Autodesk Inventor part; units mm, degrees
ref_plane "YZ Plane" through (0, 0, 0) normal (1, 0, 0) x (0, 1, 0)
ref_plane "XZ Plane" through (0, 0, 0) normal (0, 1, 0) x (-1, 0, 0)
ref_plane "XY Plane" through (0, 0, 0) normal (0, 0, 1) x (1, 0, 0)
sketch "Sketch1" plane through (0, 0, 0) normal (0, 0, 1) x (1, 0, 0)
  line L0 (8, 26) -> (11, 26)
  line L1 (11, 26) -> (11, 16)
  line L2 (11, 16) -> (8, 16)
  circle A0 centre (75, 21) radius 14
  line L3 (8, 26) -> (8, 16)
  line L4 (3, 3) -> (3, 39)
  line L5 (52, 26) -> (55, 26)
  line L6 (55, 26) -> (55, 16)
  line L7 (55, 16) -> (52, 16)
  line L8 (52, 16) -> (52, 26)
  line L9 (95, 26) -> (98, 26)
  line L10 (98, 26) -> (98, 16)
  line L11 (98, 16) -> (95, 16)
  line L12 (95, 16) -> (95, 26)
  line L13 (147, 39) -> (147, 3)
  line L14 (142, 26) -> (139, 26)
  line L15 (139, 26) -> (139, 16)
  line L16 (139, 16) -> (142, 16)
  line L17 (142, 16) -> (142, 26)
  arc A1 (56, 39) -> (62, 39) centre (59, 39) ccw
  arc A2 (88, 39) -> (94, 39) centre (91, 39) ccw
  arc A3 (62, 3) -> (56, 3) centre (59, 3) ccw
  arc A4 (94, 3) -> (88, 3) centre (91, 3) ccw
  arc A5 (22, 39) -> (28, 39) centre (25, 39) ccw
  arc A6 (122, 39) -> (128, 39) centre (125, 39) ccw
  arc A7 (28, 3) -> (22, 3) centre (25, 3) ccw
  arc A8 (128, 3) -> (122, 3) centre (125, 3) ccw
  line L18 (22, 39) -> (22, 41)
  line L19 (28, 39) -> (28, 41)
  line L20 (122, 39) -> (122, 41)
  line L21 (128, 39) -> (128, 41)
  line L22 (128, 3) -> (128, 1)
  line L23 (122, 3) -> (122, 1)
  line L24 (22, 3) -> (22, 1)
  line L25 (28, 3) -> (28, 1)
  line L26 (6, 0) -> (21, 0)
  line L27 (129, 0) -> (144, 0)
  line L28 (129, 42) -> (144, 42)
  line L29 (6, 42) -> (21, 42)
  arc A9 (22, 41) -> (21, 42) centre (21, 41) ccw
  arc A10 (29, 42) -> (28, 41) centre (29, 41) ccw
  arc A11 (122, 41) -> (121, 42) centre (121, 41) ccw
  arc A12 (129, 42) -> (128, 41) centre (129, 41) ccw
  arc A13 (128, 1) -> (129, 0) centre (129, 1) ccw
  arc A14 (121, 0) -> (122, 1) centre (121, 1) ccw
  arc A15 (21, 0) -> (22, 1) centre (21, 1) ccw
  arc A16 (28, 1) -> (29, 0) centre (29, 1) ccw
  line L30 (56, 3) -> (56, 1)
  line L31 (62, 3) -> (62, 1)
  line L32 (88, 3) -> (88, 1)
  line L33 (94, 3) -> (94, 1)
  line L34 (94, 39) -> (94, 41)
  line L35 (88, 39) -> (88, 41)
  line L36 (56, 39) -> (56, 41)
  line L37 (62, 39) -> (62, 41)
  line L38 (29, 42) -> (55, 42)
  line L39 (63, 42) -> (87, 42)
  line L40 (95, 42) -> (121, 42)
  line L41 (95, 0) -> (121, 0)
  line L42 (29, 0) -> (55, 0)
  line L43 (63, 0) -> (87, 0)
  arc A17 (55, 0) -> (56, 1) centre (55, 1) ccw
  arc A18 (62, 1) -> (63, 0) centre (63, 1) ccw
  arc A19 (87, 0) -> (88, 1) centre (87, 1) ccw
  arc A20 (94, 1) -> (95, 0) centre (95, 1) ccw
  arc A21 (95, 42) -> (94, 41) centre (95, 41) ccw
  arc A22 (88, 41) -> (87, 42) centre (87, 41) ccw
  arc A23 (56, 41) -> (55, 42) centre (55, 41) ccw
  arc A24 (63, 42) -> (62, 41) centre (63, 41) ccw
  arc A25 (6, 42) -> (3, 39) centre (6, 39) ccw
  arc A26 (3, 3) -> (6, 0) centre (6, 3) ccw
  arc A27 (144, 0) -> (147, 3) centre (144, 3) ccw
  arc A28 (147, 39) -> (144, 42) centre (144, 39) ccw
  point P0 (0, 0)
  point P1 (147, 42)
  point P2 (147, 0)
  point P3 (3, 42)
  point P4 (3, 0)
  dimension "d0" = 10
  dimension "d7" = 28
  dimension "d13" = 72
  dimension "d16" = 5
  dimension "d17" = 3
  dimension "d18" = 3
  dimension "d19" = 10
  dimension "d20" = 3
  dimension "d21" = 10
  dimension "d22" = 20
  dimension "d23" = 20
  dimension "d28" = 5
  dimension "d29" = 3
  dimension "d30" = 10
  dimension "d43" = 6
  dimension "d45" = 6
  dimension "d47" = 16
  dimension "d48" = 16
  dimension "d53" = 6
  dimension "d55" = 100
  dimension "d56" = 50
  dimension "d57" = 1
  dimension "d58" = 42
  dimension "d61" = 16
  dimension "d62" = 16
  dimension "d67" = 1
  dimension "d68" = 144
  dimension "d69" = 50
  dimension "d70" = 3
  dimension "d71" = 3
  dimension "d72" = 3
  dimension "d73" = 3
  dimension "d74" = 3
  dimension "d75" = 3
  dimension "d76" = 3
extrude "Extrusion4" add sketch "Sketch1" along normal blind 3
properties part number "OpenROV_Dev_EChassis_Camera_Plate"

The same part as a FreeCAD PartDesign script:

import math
import FreeCAD as App
import Part
import Sketcher

V = App.Vector
Q = App.Units.Quantity


def add_polygon(sketch, points):
    """Adds a closed chain of lines whose ends are joined by coincident constraints."""
    first, n = sketch.GeometryCount, len(points)
    for a, b in zip(points, points[1:] + points[:1]):
        sketch.addGeometry(Part.LineSegment(App.Vector(*a, 0), App.Vector(*b, 0)), False)
    for i in range(n):
        sketch.addConstraint(Sketcher.Constraint("Coincident", first + i, 2, first + (i + 1) % n, 1))

doc = App.newDocument("Part")
body = doc.addObject("PartDesign::Body", "Body")

# Sketch on XY plane
sketch1 = doc.addObject("Sketcher::SketchObject", "Sketch")
body.addObject(sketch1)
sketch1.AttachmentSupport = (doc.XY_Plane, [""])
sketch1.MapMode = "FlatFace"
sketch1.addGeometry(Part.LineSegment(V(3, 39, 0), V(3, 3, 0)), False)  # 0
sketch1.addGeometry(Part.ArcOfCircle(Part.Circle(V(6, 3, 0), V(0, 0, 1), 3), math.radians(180), math.radians(270)), False)  # 1
sketch1.addGeometry(Part.LineSegment(V(6, 0, 0), V(21, 0, 0)), False)  # 2
sketch1.addGeometry(Part.ArcOfCircle(Part.Circle(V(21, 1, 0), V(0, 0, 1), 1), math.radians(-90), math.radians(0)), False)  # 3
sketch1.addGeometry(Part.LineSegment(V(22, 1, 0), V(22, 3, 0)), False)  # 4
sketch1.addGeometry(Part.ArcOfCircle(Part.Circle(V(25, 3, 0), V(0, 0, 1), 3), math.radians(0), math.radians(180)), False)  # 5
sketch1.addGeometry(Part.LineSegment(V(28, 3, 0), V(28, 1, 0)), False)  # 6
sketch1.addGeometry(Part.ArcOfCircle(Part.Circle(V(29, 1, 0), V(0, 0, 1), 1), math.radians(180), math.radians(270)), False)  # 7
sketch1.addGeometry(Part.LineSegment(V(29, 0, 0), V(55, 0, 0)), False)  # 8
sketch1.addGeometry(Part.ArcOfCircle(Part.Circle(V(55, 1, 0), V(0, 0, 1), 1), math.radians(-90), math.radians(0)), False)  # 9
sketch1.addGeometry(Part.LineSegment(V(56, 1, 0), V(56, 3, 0)), False)  # 10
sketch1.addGeometry(Part.ArcOfCircle(Part.Circle(V(59, 3, 0), V(0, 0, 1), 3), math.radians(0), math.radians(180)), False)  # 11
sketch1.addGeometry(Part.LineSegment(V(62, 3, 0), V(62, 1, 0)), False)  # 12
sketch1.addGeometry(Part.ArcOfCircle(Part.Circle(V(63, 1, 0), V(0, 0, 1), 1), math.radians(180), math.radians(270)), False)  # 13
sketch1.addGeometry(Part.LineSegment(V(63, 0, 0), V(87, 0, 0)), False)  # 14
sketch1.addGeometry(Part.ArcOfCircle(Part.Circle(V(87, 1, 0), V(0, 0, 1), 1), math.radians(-90), math.radians(0)), False)  # 15
sketch1.addGeometry(Part.LineSegment(V(88, 1, 0), V(88, 3, 0)), False)  # 16
sketch1.addGeometry(Part.ArcOfCircle(Part.Circle(V(91, 3, 0), V(0, 0, 1), 3), math.radians(0), math.radians(180)), False)  # 17
sketch1.addGeometry(Part.LineSegment(V(94, 3, 0), V(94, 1, 0)), False)  # 18
sketch1.addGeometry(Part.ArcOfCircle(Part.Circle(V(95, 1, 0), V(0, 0, 1), 1), math.radians(180), math.radians(270)), False)  # 19
sketch1.addGeometry(Part.LineSegment(V(95, 0, 0), V(121, 0, 0)), False)  # 20
sketch1.addGeometry(Part.ArcOfCircle(Part.Circle(V(121, 1, 0), V(0, 0, 1), 1), math.radians(-90), math.radians(0)), False)  # 21
sketch1.addGeometry(Part.LineSegment(V(122, 1, 0), V(122, 3, 0)), False)  # 22
sketch1.addGeometry(Part.ArcOfCircle(Part.Circle(V(125, 3, 0), V(0, 0, 1), 3), math.radians(0), math.radians(180)), False)  # 23
sketch1.addGeometry(Part.LineSegment(V(128, 3, 0), V(128, 1, 0)), False)  # 24
sketch1.addGeometry(Part.ArcOfCircle(Part.Circle(V(129, 1, 0), V(0, 0, 1), 1), math.radians(180), math.radians(270)), False)  # 25
sketch1.addGeometry(Part.LineSegment(V(129, 0, 0), V(144, 0, 0)), False)  # 26
sketch1.addGeometry(Part.ArcOfCircle(Part.Circle(V(144, 3, 0), V(0, 0, 1), 3), math.radians(-90), math.radians(0)), False)  # 27
sketch1.addGeometry(Part.LineSegment(V(147, 3, 0), V(147, 39, 0)), False)  # 28
sketch1.addGeometry(Part.ArcOfCircle(Part.Circle(V(144, 39, 0), V(0, 0, 1), 3), math.radians(0), math.radians(90)), False)  # 29
sketch1.addGeometry(Part.LineSegment(V(144, 42, 0), V(129, 42, 0)), False)  # 30
sketch1.addGeometry(Part.ArcOfCircle(Part.Circle(V(129, 41, 0), V(0, 0, 1), 1), math.radians(90), math.radians(180)), False)  # 31
sketch1.addGeometry(Part.LineSegment(V(128, 41, 0), V(128, 39, 0)), False)  # 32
sketch1.addGeometry(Part.ArcOfCircle(Part.Circle(V(125, 39, 0), V(0, 0, 1), 3), math.radians(180), math.radians(360)), False)  # 33
sketch1.addGeometry(Part.LineSegment(V(122, 39, 0), V(122, 41, 0)), False)  # 34
sketch1.addGeometry(Part.ArcOfCircle(Part.Circle(V(121, 41, 0), V(0, 0, 1), 1), math.radians(0), math.radians(90)), False)  # 35
sketch1.addGeometry(Part.LineSegment(V(121, 42, 0), V(95, 42, 0)), False)  # 36
sketch1.addGeometry(Part.ArcOfCircle(Part.Circle(V(95, 41, 0), V(0, 0, 1), 1), math.radians(90), math.radians(180)), False)  # 37
sketch1.addGeometry(Part.LineSegment(V(94, 41, 0), V(94, 39, 0)), False)  # 38
sketch1.addGeometry(Part.ArcOfCircle(Part.Circle(V(91, 39, 0), V(0, 0, 1), 3), math.radians(180), math.radians(360)), False)  # 39
sketch1.addGeometry(Part.LineSegment(V(88, 39, 0), V(88, 41, 0)), False)  # 40
sketch1.addGeometry(Part.ArcOfCircle(Part.Circle(V(87, 41, 0), V(0, 0, 1), 1), math.radians(0), math.radians(90)), False)  # 41
sketch1.addGeometry(Part.LineSegment(V(87, 42, 0), V(63, 42, 0)), False)  # 42
sketch1.addGeometry(Part.ArcOfCircle(Part.Circle(V(63, 41, 0), V(0, 0, 1), 1), math.radians(90), math.radians(180)), False)  # 43
sketch1.addGeometry(Part.LineSegment(V(62, 41, 0), V(62, 39, 0)), False)  # 44
sketch1.addGeometry(Part.ArcOfCircle(Part.Circle(V(59, 39, 0), V(0, 0, 1), 3), math.radians(180), math.radians(360)), False)  # 45
sketch1.addGeometry(Part.LineSegment(V(56, 39, 0), V(56, 41, 0)), False)  # 46
sketch1.addGeometry(Part.ArcOfCircle(Part.Circle(V(55, 41, 0), V(0, 0, 1), 1), math.radians(0), math.radians(90)), False)  # 47
sketch1.addGeometry(Part.LineSegment(V(55, 42, 0), V(29, 42, 0)), False)  # 48
sketch1.addGeometry(Part.ArcOfCircle(Part.Circle(V(29, 41, 0), V(0, 0, 1), 1), math.radians(90), math.radians(180)), False)  # 49
sketch1.addGeometry(Part.LineSegment(V(28, 41, 0), V(28, 39, 0)), False)  # 50
sketch1.addGeometry(Part.ArcOfCircle(Part.Circle(V(25, 39, 0), V(0, 0, 1), 3), math.radians(180), math.radians(360)), False)  # 51
sketch1.addGeometry(Part.LineSegment(V(22, 39, 0), V(22, 41, 0)), False)  # 52
sketch1.addGeometry(Part.ArcOfCircle(Part.Circle(V(21, 41, 0), V(0, 0, 1), 1), math.radians(0), math.radians(90)), False)  # 53
sketch1.addGeometry(Part.LineSegment(V(21, 42, 0), V(6, 42, 0)), False)  # 54
sketch1.addGeometry(Part.ArcOfCircle(Part.Circle(V(6, 39, 0), V(0, 0, 1), 3), math.radians(90), math.radians(180)), False)  # 55
add_polygon(sketch1, [(8, 16), (8, 26), (11, 26), (11, 16)])  # lines 56-59
add_polygon(sketch1, [(52, 16), (52, 26), (55, 26), (55, 16)])  # lines 60-63
sketch1.addGeometry(Part.Circle(V(75, 21, 0), V(0, 0, 1), 14), False)  # 64
add_polygon(sketch1, [(95, 16), (95, 26), (98, 26), (98, 16)])  # lines 65-68
add_polygon(sketch1, [(139, 26), (142, 26), (142, 16), (139, 16)])  # lines 69-72
sketch1.addConstraint([
    Sketcher.Constraint("Tangent", 0, 2, 1, 1),
    Sketcher.Constraint("Tangent", 1, 2, 2, 1),
    Sketcher.Constraint("Tangent", 2, 2, 3, 1),
    Sketcher.Constraint("Tangent", 3, 2, 4, 1),
    Sketcher.Constraint("Tangent", 4, 2, 5, 2),
    Sketcher.Constraint("Tangent", 5, 1, 6, 1),
    Sketcher.Constraint("Tangent", 6, 2, 7, 1),
    Sketcher.Constraint("Tangent", 7, 2, 8, 1),
    Sketcher.Constraint("Tangent", 8, 2, 9, 1),
    Sketcher.Constraint("Tangent", 9, 2, 10, 1),
    Sketcher.Constraint("Tangent", 10, 2, 11, 2),
    Sketcher.Constraint("Tangent", 11, 1, 12, 1),
    Sketcher.Constraint("Tangent", 12, 2, 13, 1),
    Sketcher.Constraint("Tangent", 13, 2, 14, 1),
    Sketcher.Constraint("Tangent", 14, 2, 15, 1),
    Sketcher.Constraint("Tangent", 15, 2, 16, 1),
    Sketcher.Constraint("Tangent", 16, 2, 17, 2),
    Sketcher.Constraint("Tangent", 17, 1, 18, 1),
    Sketcher.Constraint("Tangent", 18, 2, 19, 1),
    Sketcher.Constraint("Tangent", 19, 2, 20, 1),
    Sketcher.Constraint("Tangent", 20, 2, 21, 1),
    Sketcher.Constraint("Tangent", 21, 2, 22, 1),
    Sketcher.Constraint("Tangent", 22, 2, 23, 2),
    Sketcher.Constraint("Tangent", 23, 1, 24, 1),
    Sketcher.Constraint("Tangent", 24, 2, 25, 1),
    Sketcher.Constraint("Tangent", 25, 2, 26, 1),
    Sketcher.Constraint("Tangent", 26, 2, 27, 1),
    Sketcher.Constraint("Tangent", 27, 2, 28, 1),
    Sketcher.Constraint("Tangent", 28, 2, 29, 1),
    Sketcher.Constraint("Tangent", 29, 2, 30, 1),
    Sketcher.Constraint("Tangent", 30, 2, 31, 1),
    Sketcher.Constraint("Tangent", 31, 2, 32, 1),
    Sketcher.Constraint("Tangent", 32, 2, 33, 2),
    Sketcher.Constraint("Tangent", 33, 1, 34, 1),
    Sketcher.Constraint("Tangent", 34, 2, 35, 1),
    Sketcher.Constraint("Tangent", 35, 2, 36, 1),
    Sketcher.Constraint("Tangent", 36, 2, 37, 1),
    Sketcher.Constraint("Tangent", 37, 2, 38, 1),
    Sketcher.Constraint("Tangent", 38, 2, 39, 2),
    Sketcher.Constraint("Tangent", 39, 1, 40, 1),
    Sketcher.Constraint("Tangent", 40, 2, 41, 1),
    Sketcher.Constraint("Tangent", 41, 2, 42, 1),
    Sketcher.Constraint("Tangent", 42, 2, 43, 1),
    Sketcher.Constraint("Tangent", 43, 2, 44, 1),
    Sketcher.Constraint("Tangent", 44, 2, 45, 2),
    Sketcher.Constraint("Tangent", 45, 1, 46, 1),
    Sketcher.Constraint("Tangent", 46, 2, 47, 1),
    Sketcher.Constraint("Tangent", 47, 2, 48, 1),
    Sketcher.Constraint("Tangent", 48, 2, 49, 1),
    Sketcher.Constraint("Tangent", 49, 2, 50, 1),
    Sketcher.Constraint("Tangent", 50, 2, 51, 2),
    Sketcher.Constraint("Tangent", 51, 1, 52, 1),
    Sketcher.Constraint("Tangent", 52, 2, 53, 1),
    Sketcher.Constraint("Tangent", 53, 2, 54, 1),
    Sketcher.Constraint("Tangent", 54, 2, 55, 1),
    Sketcher.Constraint("Tangent", 55, 2, 0, 1),
    Sketcher.Constraint("Vertical", 0),
    Sketcher.Constraint("Horizontal", 2),
    Sketcher.Constraint("Vertical", 4),
    Sketcher.Constraint("Vertical", 6),
    Sketcher.Constraint("Horizontal", 8),
    Sketcher.Constraint("Vertical", 10),
    Sketcher.Constraint("Vertical", 12),
    Sketcher.Constraint("Horizontal", 14),
    Sketcher.Constraint("Vertical", 16),
    Sketcher.Constraint("Vertical", 18),
    Sketcher.Constraint("Horizontal", 20),
    Sketcher.Constraint("Vertical", 22),
    Sketcher.Constraint("Vertical", 24),
    Sketcher.Constraint("Horizontal", 26),
    Sketcher.Constraint("Vertical", 28),
    Sketcher.Constraint("Horizontal", 30),
    Sketcher.Constraint("Vertical", 32),
    Sketcher.Constraint("Vertical", 34),
    Sketcher.Constraint("Horizontal", 36),
    Sketcher.Constraint("Vertical", 38),
    Sketcher.Constraint("Vertical", 40),
    Sketcher.Constraint("Horizontal", 42),
    Sketcher.Constraint("Vertical", 44),
    Sketcher.Constraint("Vertical", 46),
    Sketcher.Constraint("Horizontal", 48),
    Sketcher.Constraint("Vertical", 50),
    Sketcher.Constraint("Vertical", 52),
    Sketcher.Constraint("Horizontal", 54),
    Sketcher.Constraint("Vertical", 56),
    Sketcher.Constraint("Horizontal", 57),
    Sketcher.Constraint("Vertical", 58),
    Sketcher.Constraint("Horizontal", 59),
    Sketcher.Constraint("Vertical", 60),
    Sketcher.Constraint("Horizontal", 61),
    Sketcher.Constraint("Vertical", 62),
    Sketcher.Constraint("Horizontal", 63),
    Sketcher.Constraint("Vertical", 65),
    Sketcher.Constraint("Horizontal", 66),
    Sketcher.Constraint("Vertical", 67),
    Sketcher.Constraint("Horizontal", 68),
    Sketcher.Constraint("Horizontal", 69),
    Sketcher.Constraint("Vertical", 70),
    Sketcher.Constraint("Horizontal", 71),
    Sketcher.Constraint("Vertical", 72),
    Sketcher.Constraint("Equal", 1, 5),
    Sketcher.Constraint("Equal", 3, 7),
    Sketcher.Constraint("Equal", 7, 9),
    Sketcher.Constraint("Equal", 5, 11),
    Sketcher.Constraint("Equal", 9, 13),
    Sketcher.Constraint("Equal", 13, 15),
    Sketcher.Constraint("Equal", 11, 17),
    Sketcher.Constraint("Equal", 15, 19),
    Sketcher.Constraint("Equal", 19, 21),
    Sketcher.Constraint("Equal", 17, 23),
    Sketcher.Constraint("Equal", 21, 25),
    Sketcher.Constraint("Equal", 23, 27),
    Sketcher.Constraint("Equal", 27, 29),
    Sketcher.Constraint("Equal", 25, 31),
    Sketcher.Constraint("Equal", 29, 33),
    Sketcher.Constraint("Equal", 31, 35),
    Sketcher.Constraint("Equal", 35, 37),
    Sketcher.Constraint("Equal", 33, 39),
    Sketcher.Constraint("Equal", 37, 41),
    Sketcher.Constraint("Equal", 41, 43),
    Sketcher.Constraint("Equal", 39, 45),
    Sketcher.Constraint("Equal", 43, 47),
    Sketcher.Constraint("Equal", 47, 49),
    Sketcher.Constraint("Equal", 45, 51),
    Sketcher.Constraint("Equal", 49, 53),
    Sketcher.Constraint("Equal", 51, 55),
    Sketcher.Constraint("PointOnObject", 1, 2, -1),
    Sketcher.Constraint("PointOnObject", 7, 2, -1),
    Sketcher.Constraint("PointOnObject", 13, 2, -1),
    Sketcher.Constraint("PointOnObject", 19, 2, -1),
    Sketcher.Constraint("PointOnObject", 25, 2, -1),
    Sketcher.Constraint("Horizontal", 1, 3, 5, 3),
    Sketcher.Constraint("Horizontal", 5, 3, 11, 3),
    Sketcher.Constraint("Horizontal", 11, 3, 17, 3),
    Sketcher.Constraint("Horizontal", 17, 3, 23, 3),
    Sketcher.Constraint("Horizontal", 29, 3, 33, 3),
    Sketcher.Constraint("Horizontal", 31, 3, 35, 3),
    Sketcher.Constraint("Horizontal", 33, 3, 39, 3),
    Sketcher.Constraint("Horizontal", 37, 3, 41, 3),
    Sketcher.Constraint("Horizontal", 39, 3, 45, 3),
    Sketcher.Constraint("Horizontal", 43, 3, 47, 3),
    Sketcher.Constraint("Horizontal", 45, 3, 51, 3),
    Sketcher.Constraint("Horizontal", 49, 3, 53, 3),
    Sketcher.Constraint("Horizontal", 57, 2, 60, 2),
    Sketcher.Constraint("Horizontal", 59, 2, 62, 2),
    Sketcher.Constraint("Horizontal", 61, 2, 65, 2),
    Sketcher.Constraint("Horizontal", 63, 2, 67, 2),
    Sketcher.Constraint("Horizontal", 66, 2, 69, 2),
    Sketcher.Constraint("Horizontal", 68, 2, 70, 2),
    Sketcher.Constraint("Vertical", 25, 3, 31, 3),
    Sketcher.Constraint("Vertical", 19, 3, 37, 3),
    Sketcher.Constraint("Vertical", 13, 3, 43, 3),
    Sketcher.Constraint("Vertical", 7, 3, 49, 3),
    Sketcher.Constraint("Vertical", 47, 2, 61, 2),
    Sketcher.Constraint("Vertical", 36, 2, 65, 2),
    Sketcher.Constraint("Equal", 8, 20),
    Sketcher.Constraint("Equal", 2, 26),
    Sketcher.Constraint("Equal", 59, 61),
    Sketcher.Constraint("Equal", 63, 66),
    Sketcher.Constraint("Equal", 68, 69),
    Sketcher.Constraint("Diameter", 64, Q("28 mm")),
    Sketcher.Constraint("Radius", 1, Q("3 mm")),
    Sketcher.Constraint("Radius", 3, Q("1 mm")),
    Sketcher.Constraint("DistanceX", 57, 1, 57, 2, Q("3 mm")),
    Sketcher.Constraint("DistanceY", 56, 1, 56, 2, Q("10 mm")),
    Sketcher.Constraint("DistanceX", -1, 1, 1, 3, Q("6 mm")),
    Sketcher.Constraint("DistanceX", -1, 1, 27, 3, Q("144 mm")),
    Sketcher.Constraint("DistanceX", -1, 1, 5, 1, Q("28 mm")),
    Sketcher.Constraint("DistanceY", -1, 1, 29, 2, Q("42 mm")),
    Sketcher.Constraint("DistanceY", -1, 1, 58, 2, Q("16 mm")),
    Sketcher.Constraint("DistanceX", 8, 1, 8, 2, Q("26 mm")),
    Sketcher.Constraint("DistanceX", -1, 1, 64, 3, Q("75 mm")),
    Sketcher.Constraint("DistanceY", -1, 1, 64, 3, Q("21 mm")),
    Sketcher.Constraint("DistanceX", -1, 1, 56, 2, Q("8 mm")),
    Sketcher.Constraint("DistanceX", -1, 1, 69, 2, Q("142 mm")),
])
pad1 = doc.addObject("PartDesign::Pad", "Pad")
body.addObject(pad1)
pad1.Profile = sketch1
pad1.Length = 3

doc.recompute()
